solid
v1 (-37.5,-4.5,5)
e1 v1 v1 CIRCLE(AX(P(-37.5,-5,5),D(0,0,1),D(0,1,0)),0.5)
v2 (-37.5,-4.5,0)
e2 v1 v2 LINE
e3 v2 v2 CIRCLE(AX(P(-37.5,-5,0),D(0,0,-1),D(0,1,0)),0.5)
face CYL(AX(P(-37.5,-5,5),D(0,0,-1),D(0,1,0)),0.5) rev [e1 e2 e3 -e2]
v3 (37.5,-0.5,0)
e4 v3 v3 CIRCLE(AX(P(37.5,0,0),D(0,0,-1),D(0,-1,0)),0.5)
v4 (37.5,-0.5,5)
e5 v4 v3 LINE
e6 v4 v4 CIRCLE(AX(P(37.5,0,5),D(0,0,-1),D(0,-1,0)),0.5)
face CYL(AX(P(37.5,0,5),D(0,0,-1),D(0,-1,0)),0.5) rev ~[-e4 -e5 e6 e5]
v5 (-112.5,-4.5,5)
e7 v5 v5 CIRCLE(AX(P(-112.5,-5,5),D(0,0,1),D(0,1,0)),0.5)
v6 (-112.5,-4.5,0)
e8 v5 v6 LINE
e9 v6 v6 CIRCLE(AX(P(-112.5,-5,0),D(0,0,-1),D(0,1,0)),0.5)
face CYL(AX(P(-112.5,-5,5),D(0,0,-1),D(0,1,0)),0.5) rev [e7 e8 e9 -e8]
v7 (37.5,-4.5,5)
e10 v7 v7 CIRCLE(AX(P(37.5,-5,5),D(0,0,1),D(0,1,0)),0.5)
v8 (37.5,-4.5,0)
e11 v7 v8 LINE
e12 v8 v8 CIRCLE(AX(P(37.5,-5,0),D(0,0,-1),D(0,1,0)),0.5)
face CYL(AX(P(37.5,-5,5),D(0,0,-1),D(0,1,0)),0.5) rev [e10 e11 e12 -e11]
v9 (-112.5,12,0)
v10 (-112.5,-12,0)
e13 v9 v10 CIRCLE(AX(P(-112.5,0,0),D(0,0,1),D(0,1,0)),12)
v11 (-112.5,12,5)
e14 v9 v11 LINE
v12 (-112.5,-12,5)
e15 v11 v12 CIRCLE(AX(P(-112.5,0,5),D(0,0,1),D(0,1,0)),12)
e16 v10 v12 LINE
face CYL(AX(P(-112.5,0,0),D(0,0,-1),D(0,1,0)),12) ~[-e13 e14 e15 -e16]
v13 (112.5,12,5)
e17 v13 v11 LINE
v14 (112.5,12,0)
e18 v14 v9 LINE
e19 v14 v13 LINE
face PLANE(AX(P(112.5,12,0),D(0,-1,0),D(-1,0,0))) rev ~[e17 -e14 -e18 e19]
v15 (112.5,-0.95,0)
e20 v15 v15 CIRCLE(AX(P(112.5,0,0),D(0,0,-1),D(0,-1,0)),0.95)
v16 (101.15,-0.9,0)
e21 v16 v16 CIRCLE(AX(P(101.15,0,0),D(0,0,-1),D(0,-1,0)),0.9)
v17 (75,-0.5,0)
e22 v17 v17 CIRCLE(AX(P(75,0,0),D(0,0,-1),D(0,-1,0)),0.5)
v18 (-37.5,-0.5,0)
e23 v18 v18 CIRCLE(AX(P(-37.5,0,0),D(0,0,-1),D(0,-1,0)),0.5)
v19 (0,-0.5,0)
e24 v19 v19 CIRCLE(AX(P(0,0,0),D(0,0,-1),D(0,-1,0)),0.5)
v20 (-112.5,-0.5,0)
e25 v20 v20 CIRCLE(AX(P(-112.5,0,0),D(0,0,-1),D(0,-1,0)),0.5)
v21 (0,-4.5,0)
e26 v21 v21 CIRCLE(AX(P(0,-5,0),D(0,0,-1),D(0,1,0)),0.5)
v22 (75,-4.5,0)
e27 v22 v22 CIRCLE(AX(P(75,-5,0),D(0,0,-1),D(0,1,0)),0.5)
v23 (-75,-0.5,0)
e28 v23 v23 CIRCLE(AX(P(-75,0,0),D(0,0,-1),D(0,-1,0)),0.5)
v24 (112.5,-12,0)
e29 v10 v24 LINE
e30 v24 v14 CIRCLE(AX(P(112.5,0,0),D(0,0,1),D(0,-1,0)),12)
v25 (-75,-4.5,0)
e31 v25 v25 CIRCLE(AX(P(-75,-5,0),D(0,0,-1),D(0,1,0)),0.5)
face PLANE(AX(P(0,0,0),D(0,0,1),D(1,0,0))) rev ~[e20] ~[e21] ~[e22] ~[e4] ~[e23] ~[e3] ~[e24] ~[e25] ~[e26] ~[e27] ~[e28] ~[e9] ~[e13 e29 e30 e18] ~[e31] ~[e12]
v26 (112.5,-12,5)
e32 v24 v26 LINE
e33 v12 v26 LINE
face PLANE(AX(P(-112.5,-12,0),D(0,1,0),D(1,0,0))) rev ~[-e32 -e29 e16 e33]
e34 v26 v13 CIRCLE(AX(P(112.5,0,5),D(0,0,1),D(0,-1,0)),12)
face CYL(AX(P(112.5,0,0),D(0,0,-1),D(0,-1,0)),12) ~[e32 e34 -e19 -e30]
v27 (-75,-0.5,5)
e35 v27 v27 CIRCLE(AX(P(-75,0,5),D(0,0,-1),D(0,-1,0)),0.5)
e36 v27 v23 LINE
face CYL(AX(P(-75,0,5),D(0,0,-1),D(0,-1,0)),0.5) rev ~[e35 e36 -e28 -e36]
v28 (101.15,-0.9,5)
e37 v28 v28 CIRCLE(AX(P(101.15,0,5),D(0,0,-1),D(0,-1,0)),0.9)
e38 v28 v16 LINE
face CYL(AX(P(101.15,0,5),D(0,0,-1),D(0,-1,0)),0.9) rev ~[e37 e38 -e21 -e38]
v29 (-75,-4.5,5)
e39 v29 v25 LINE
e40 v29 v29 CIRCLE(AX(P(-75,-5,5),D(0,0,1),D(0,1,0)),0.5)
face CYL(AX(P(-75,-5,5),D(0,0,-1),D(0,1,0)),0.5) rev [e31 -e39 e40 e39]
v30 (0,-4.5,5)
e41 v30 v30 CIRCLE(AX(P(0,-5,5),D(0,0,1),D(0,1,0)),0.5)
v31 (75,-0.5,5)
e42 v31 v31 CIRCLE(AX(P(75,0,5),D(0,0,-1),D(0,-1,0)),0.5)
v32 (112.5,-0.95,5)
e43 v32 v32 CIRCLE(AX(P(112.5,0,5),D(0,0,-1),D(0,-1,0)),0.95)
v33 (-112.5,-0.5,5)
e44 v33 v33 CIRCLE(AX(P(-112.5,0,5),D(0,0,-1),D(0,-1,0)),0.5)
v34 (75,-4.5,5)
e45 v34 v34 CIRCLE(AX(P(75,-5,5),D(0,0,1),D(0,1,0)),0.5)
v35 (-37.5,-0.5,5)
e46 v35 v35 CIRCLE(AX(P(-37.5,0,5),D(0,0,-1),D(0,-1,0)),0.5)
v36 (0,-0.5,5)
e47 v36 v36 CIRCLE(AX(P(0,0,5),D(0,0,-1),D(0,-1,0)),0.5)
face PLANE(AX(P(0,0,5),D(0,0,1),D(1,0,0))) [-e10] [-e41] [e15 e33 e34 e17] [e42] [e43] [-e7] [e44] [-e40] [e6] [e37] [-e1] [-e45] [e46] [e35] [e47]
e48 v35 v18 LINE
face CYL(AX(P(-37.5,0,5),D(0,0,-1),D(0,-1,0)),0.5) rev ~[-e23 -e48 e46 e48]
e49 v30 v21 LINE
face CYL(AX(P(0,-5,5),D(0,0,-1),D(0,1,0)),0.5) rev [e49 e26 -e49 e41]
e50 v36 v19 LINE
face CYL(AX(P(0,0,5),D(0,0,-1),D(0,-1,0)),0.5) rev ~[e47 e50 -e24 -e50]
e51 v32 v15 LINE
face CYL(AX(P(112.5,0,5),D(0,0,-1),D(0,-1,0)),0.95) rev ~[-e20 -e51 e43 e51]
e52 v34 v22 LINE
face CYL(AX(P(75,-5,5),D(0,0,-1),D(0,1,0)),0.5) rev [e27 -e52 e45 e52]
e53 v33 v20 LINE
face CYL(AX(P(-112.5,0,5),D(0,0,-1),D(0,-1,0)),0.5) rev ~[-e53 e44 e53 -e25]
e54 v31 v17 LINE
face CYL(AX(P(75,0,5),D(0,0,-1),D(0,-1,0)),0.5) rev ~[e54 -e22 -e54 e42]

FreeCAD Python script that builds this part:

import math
import FreeCAD as App
import Part
import Sketcher
from FreeCAD import Vector
Q = App.Units.Quantity

doc = App.newDocument("Part")
body = doc.addObject("PartDesign::Body", "Body")

# Sketch on XY plane
sketch1 = doc.addObject("Sketcher::SketchObject", "Sketch")
body.addObject(sketch1)
sketch1.AttachmentSupport = (doc.XY_Plane, [""])
sketch1.MapMode = "FlatFace"
sketch1.addGeometry([
    Part.ArcOfCircle(Part.Circle(Vector(112.5, 0, 0), Vector(0, 0, 1), 12), math.radians(-90), math.radians(90)),
    Part.LineSegment(Vector(112.5, 12, 0), Vector(-112.5, 12, 0)),
    Part.ArcOfCircle(Part.Circle(Vector(-112.5, 0, 0), Vector(0, 0, 1), 12), math.radians(90), math.radians(270)),
    Part.LineSegment(Vector(-112.5, -12, 0), Vector(112.5, -12, 0)),
], False)
sketch1.addConstraint([
    Sketcher.Constraint("Tangent", 0, 2, 1, 1),
    Sketcher.Constraint("Tangent", 1, 2, 2, 1),
    Sketcher.Constraint("Tangent", 2, 2, 3, 1),
    Sketcher.Constraint("Tangent", 3, 2, 0, 1),
    Sketcher.Constraint("Horizontal", 1),
    Sketcher.Constraint("Horizontal", 3),
    Sketcher.Constraint("Symmetric", 0, 3, 2, 3, -1, 1),
    Sketcher.Constraint("Radius", 0, Q("12 mm")),
    Sketcher.Constraint("DistanceX", 1, 2, 1, 1, Q("225 mm")),
])
pad1 = doc.addObject("PartDesign::Pad", "Pad")
body.addObject(pad1)
pad1.Profile = sketch1
pad1.Length = 5

# Sketch on XY plane
sketch2 = doc.addObject("Sketcher::SketchObject", "Sketch001")
body.addObject(sketch2)
sketch2.AttachmentSupport = (doc.XY_Plane, [""])
sketch2.MapMode = "FlatFace"
sketch2.AttachmentOffset = App.Placement(Vector(0, 0, 5), App.Rotation())
sketch2.addGeometry(Part.Circle(Vector(112.5, 0, 0), Vector(0, 0, 1), 0.95), False)
sketch2.addConstraint([
    Sketcher.Constraint("PointOnObject", 0, 3, -1),
    Sketcher.Constraint("Diameter", 0, Q("1.9 mm")),
    Sketcher.Constraint("DistanceX", -1, 1, 0, 3, Q("112.5 mm")),
])
doc.recompute()
hole = doc.addObject("PartDesign::Hole", "Hole")
body.addObject(hole)
hole.Profile = sketch2
hole.ThreadType = "None"
hole.Diameter = 1.9
hole.DepthType = "ThroughAll"

# Sketch on XY plane
sketch3 = doc.addObject("Sketcher::SketchObject", "Sketch002")
body.addObject(sketch3)
sketch3.AttachmentSupport = (doc.XY_Plane, [""])
sketch3.MapMode = "FlatFace"
sketch3.AttachmentOffset = App.Placement(Vector(0, 0, 5), App.Rotation())
sketch3.addGeometry([
    Part.Circle(Vector(-112.5, 0, 0), Vector(0, 0, 1), 0.5),  # 0
    Part.Circle(Vector(-75, 0, 0), Vector(0, 0, 1), 0.5),  # 1
    Part.Circle(Vector(-37.5, 0, 0), Vector(0, 0, 1), 0.5),  # 2
    Part.Circle(Vector(0, 0, 0), Vector(0, 0, 1), 0.5),  # 3
    Part.Circle(Vector(37.5, 0, 0), Vector(0, 0, 1), 0.5),  # 4
    Part.Circle(Vector(75, 0, 0), Vector(0, 0, 1), 0.5),  # 5
], False)
sketch3.addConstraint([
    Sketcher.Constraint("Coincident", 3, 3, -1, 1),
    Sketcher.Constraint("Equal", 0, 1),
    Sketcher.Constraint("Equal", 1, 2),
    Sketcher.Constraint("Equal", 2, 3),
    Sketcher.Constraint("Equal", 3, 4),
    Sketcher.Constraint("Equal", 4, 5),
    Sketcher.Constraint("Symmetric", 2, 3, 4, 3, -1, 1),
    Sketcher.Constraint("Symmetric", 1, 3, 5, 3, -1, 1),
    Sketcher.Constraint("PointOnObject", 0, 3, -1),
    Sketcher.Constraint("PointOnObject", 1, 3, -1),
    Sketcher.Constraint("PointOnObject", 2, 3, -1),
    Sketcher.Constraint("Diameter", 0, Q("1 mm")),
    Sketcher.Constraint("DistanceX", 1, 3, -1, 1, Q("75 mm")),
    Sketcher.Constraint("DistanceX", 0, 3, 2, 3, Q("75 mm")),
    Sketcher.Constraint("DistanceX", 2, 3, 4, 3, Q("75 mm")),
])
doc.recompute()
hole2 = doc.addObject("PartDesign::Hole", "Hole001")
body.addObject(hole2)
hole2.Profile = sketch3
hole2.ThreadType = "None"
hole2.Diameter = 1
hole2.DepthType = "ThroughAll"

# Sketch on XY plane
sketch4 = doc.addObject("Sketcher::SketchObject", "Sketch003")
body.addObject(sketch4)
sketch4.AttachmentSupport = (doc.XY_Plane, [""])
sketch4.MapMode = "FlatFace"
sketch4.AttachmentOffset = App.Placement(Vector(0, 0, 5), App.Rotation())
sketch4.addGeometry(Part.Circle(Vector(101.15, 0, 0), Vector(0, 0, 1), 0.9), False)
sketch4.addConstraint([
    Sketcher.Constraint("PointOnObject", 0, 3, -1),
    Sketcher.Constraint("Diameter", 0, Q("1.8 mm")),
    Sketcher.Constraint("DistanceX", -1, 1, 0, 3, Q("101.15 mm")),
])
doc.recompute()
hole3 = doc.addObject("PartDesign::Hole", "Hole002")
body.addObject(hole3)
hole3.Profile = sketch4
hole3.ThreadType = "None"
hole3.Diameter = 1.8
hole3.DepthType = "ThroughAll"
doc.recompute()

datumplane = doc.addObject("PartDesign::Plane", "DatumPlane")
body.addObject(datumplane)
datumplane.AttachmentSupport = (doc.XZ_Plane, [""])
datumplane.MapMode = "FlatFace"
datumplane.AttachmentOffset = App.Placement(Vector(0, 0, 2.5), App.Rotation())
mirrored = doc.addObject("PartDesign::Mirrored", "Mirrored")
body.addObject(mirrored)
mirrored.Originals = [hole2]
mirrored.MirrorPlane = (datumplane, [""])
body.Tip = mirrored

doc.recompute()
